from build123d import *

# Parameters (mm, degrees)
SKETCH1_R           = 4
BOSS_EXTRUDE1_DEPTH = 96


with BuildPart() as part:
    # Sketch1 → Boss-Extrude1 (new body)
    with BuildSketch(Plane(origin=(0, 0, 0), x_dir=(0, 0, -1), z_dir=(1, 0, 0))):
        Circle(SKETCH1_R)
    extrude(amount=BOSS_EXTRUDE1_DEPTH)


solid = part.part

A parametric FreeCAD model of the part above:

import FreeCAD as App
import Part
import Sketcher

doc = App.newDocument("Part")
body = doc.addObject("PartDesign::Body", "Body")

sketch1 = body.newObject("Sketcher::SketchObject", "Sketch")
sketch1.AttachmentSupport = (doc.getObject("YZ_Plane"), [""])
sketch1.MapMode = "FlatFace"
sketch1.addGeometry(Part.Circle(App.Vector(0, 0, 0), App.Vector(0, 0, 1), 4), False)
sketch1.addConstraint([
    Sketcher.Constraint("Coincident", 0, 3, -1, 1),
    Sketcher.Constraint("Diameter", 0, 8.0),
])
pad1 = body.newObject("PartDesign::Pad", "Pad")
pad1.Profile = sketch1
pad1.Length = 96

doc.recompute()
